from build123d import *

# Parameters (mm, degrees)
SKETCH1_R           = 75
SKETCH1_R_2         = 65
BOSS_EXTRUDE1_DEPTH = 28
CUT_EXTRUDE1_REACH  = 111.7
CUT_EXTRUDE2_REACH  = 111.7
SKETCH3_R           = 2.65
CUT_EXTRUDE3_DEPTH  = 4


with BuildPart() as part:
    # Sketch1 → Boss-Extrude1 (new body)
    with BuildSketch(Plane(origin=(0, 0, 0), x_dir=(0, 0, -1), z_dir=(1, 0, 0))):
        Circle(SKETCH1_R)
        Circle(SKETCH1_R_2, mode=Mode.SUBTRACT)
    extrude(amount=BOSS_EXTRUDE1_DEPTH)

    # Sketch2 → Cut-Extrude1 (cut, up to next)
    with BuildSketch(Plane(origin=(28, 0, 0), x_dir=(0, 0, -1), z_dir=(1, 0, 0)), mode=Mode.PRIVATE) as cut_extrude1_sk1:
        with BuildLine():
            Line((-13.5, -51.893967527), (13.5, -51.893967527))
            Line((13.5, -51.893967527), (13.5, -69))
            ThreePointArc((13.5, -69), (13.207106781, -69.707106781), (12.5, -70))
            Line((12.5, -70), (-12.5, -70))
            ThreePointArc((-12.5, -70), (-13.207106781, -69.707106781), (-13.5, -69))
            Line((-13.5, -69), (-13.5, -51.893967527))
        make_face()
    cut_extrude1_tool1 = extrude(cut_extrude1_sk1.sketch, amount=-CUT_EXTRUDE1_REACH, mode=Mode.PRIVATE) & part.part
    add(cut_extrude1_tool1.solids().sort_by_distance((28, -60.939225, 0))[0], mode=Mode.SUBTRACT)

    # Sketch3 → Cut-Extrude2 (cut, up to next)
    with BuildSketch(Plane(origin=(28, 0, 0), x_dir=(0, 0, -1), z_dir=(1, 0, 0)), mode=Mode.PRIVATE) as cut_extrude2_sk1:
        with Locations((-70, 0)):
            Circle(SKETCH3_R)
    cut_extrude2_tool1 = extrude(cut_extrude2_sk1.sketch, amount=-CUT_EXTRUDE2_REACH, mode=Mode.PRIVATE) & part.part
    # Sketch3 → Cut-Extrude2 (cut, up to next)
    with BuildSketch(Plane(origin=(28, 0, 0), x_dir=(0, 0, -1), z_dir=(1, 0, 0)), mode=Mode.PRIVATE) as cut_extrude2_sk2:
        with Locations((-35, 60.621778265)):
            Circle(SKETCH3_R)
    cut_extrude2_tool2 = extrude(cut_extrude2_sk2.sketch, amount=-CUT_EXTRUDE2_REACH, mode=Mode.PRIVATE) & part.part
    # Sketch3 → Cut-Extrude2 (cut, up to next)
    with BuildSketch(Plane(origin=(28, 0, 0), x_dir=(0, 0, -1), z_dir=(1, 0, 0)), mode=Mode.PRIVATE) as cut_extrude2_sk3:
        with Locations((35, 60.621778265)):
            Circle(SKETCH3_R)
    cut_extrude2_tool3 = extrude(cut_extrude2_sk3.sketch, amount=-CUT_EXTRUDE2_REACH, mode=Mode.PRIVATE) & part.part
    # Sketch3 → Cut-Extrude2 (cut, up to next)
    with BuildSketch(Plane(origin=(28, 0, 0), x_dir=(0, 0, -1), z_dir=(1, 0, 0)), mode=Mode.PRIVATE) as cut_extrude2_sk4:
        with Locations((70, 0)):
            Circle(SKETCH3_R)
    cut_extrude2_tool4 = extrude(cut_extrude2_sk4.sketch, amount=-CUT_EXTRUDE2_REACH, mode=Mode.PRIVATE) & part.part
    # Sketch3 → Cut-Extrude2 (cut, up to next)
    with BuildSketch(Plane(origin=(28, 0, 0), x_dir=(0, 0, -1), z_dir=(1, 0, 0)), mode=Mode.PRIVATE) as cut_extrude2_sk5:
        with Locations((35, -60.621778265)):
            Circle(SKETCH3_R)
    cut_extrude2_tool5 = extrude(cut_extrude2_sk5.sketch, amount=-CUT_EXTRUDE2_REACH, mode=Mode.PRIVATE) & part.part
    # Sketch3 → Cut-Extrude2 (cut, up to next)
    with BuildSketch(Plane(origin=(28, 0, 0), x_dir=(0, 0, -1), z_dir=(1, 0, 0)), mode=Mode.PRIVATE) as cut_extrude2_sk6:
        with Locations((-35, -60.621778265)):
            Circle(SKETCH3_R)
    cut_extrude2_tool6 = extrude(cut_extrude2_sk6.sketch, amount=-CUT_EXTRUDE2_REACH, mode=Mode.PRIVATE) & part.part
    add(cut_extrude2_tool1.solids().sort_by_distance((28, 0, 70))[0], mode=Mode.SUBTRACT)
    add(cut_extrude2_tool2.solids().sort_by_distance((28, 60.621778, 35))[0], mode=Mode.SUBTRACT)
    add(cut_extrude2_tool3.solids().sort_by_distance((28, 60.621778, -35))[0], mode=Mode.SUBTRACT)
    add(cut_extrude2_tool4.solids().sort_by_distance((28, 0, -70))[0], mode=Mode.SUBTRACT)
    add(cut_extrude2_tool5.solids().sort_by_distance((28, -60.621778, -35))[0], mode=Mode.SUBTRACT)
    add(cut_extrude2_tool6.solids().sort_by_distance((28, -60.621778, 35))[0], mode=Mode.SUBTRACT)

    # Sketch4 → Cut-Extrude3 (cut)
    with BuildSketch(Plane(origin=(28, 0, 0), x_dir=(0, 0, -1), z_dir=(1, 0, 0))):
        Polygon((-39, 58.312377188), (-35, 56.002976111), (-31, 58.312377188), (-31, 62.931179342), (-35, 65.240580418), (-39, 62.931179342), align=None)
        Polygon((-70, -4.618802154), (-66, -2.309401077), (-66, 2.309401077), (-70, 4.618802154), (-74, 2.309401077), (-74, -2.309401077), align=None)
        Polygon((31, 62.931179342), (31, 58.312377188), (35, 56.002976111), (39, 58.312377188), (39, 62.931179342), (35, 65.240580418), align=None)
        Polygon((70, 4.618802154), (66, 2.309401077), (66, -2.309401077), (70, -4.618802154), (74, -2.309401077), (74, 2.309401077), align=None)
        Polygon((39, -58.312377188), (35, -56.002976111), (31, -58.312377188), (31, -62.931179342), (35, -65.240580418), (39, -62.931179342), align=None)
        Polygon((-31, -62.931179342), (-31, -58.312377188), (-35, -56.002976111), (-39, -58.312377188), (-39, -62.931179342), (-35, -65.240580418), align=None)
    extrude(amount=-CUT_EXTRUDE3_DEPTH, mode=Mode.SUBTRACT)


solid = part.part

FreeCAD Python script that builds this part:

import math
import FreeCAD as App
import Part
import Sketcher
Q = App.Units.Quantity

doc = App.newDocument("Part")
body = doc.addObject("PartDesign::Body", "Body")

sketch1 = body.newObject("Sketcher::SketchObject", "Sketch")
sketch1.AttachmentSupport = (doc.getObject("YZ_Plane"), [""])
sketch1.MapMode = "FlatFace"
sketch1.addGeometry([
    Part.Circle(App.Vector(0, 0, 0), App.Vector(0, 0, 1), 75),
    Part.Circle(App.Vector(0, 0, 0), App.Vector(0, 0, 1), 65),
], False)
sketch1.addConstraint([
    Sketcher.Constraint("Coincident", 0, 3, -1, 1),
    Sketcher.Constraint("Coincident", 1, 3, -1, 1),
    Sketcher.Constraint("Diameter", 0, 150.0),
    Sketcher.Constraint("Diameter", 1, 130.0),
])
pad1 = body.newObject("PartDesign::Pad", "Pad")
pad1.Profile = sketch1
pad1.Length = 28

sketch2 = body.newObject("Sketcher::SketchObject", "Sketch001")
sketch2.AttachmentSupport = (doc.getObject("YZ_Plane"), [""])
sketch2.MapMode = "FlatFace"
sketch2.AttachmentOffset = App.Placement(App.Vector(0, 0, 28), App.Rotation())
sketch2.addGeometry([
    Part.LineSegment(App.Vector(-51.9, -13.5, 0), App.Vector(-51.9, 13.5, 0)),
    Part.LineSegment(App.Vector(-51.9, 13.5, 0), App.Vector(-69, 13.5, 0)),
    Part.ArcOfCircle(Part.Circle(App.Vector(-69, 12.5, 0), App.Vector(0, 0, 1), 1), math.radians(90), math.radians(180)),
    Part.LineSegment(App.Vector(-70, 12.5, 0), App.Vector(-70, -12.5, 0)),
    Part.ArcOfCircle(Part.Circle(App.Vector(-69, -12.5, 0), App.Vector(0, 0, 1), 1), math.radians(-180), math.radians(-90)),
    Part.LineSegment(App.Vector(-69, -13.5, 0), App.Vector(-51.9, -13.5, 0)),
], False)
sketch2.addConstraint([
    Sketcher.Constraint("Coincident", 0, 2, 1, 1),
    Sketcher.Constraint("Tangent", 1, 2, 2, 1),
    Sketcher.Constraint("Tangent", 2, 2, 3, 1),
    Sketcher.Constraint("Tangent", 3, 2, 4, 1),
    Sketcher.Constraint("Tangent", 4, 2, 5, 1),
    Sketcher.Constraint("Coincident", 5, 2, 0, 1),
    Sketcher.Constraint("Vertical", 0),
    Sketcher.Constraint("Horizontal", 1),
    Sketcher.Constraint("Vertical", 3),
    Sketcher.Constraint("Horizontal", 5),
    Sketcher.Constraint("Equal", 2, 4),
    Sketcher.Constraint("Radius", 2, 1.0),
    Sketcher.Constraint("DistanceY", 0, 1, 0, 2, 27.0),
    Sketcher.Constraint("DistanceX", 2, 3, -1, 1, 69.0),
    Sketcher.Constraint("DistanceY", -1, 1, 2, 3, 12.5),
    Sketcher.Constraint("DistanceX", 1, 2, 1, 1, 17.106032),
])
pocket1 = body.newObject("PartDesign::Pocket", "Pocket")
pocket1.Profile = sketch2
pocket1.Length = 28

sketch3 = body.newObject("Sketcher::SketchObject", "Sketch002")
sketch3.AttachmentSupport = (doc.getObject("YZ_Plane"), [""])
sketch3.MapMode = "FlatFace"
sketch3.AttachmentOffset = App.Placement(App.Vector(0, 0, 28), App.Rotation())
sketch3.addGeometry(Part.Circle(App.Vector(0, 70, 0), App.Vector(0, 0, 1), 2.6), False)
sketch3.addConstraint([
    Sketcher.Constraint("PointOnObject", 0, 3, -2),
    Sketcher.Constraint("Diameter", 0, 5.3),
    Sketcher.Constraint("DistanceY", -1, 1, 0, 3, 70.0),
])
pocket2 = body.newObject("PartDesign::Pocket", "Pocket001")
pocket2.Profile = sketch3
pocket2.Type = "UpToFirst"

sketch4 = body.newObject("Sketcher::SketchObject", "Sketch003")
sketch4.AttachmentSupport = (doc.getObject("YZ_Plane"), [""])
sketch4.MapMode = "FlatFace"
sketch4.AttachmentOffset = App.Placement(App.Vector(0, 0, 28), App.Rotation())
sketch4.addGeometry(Part.Circle(App.Vector(60.6, 35, 0), App.Vector(0, 0, 1), 2.6), False)
sketch4.addConstraint([
    Sketcher.Constraint("Diameter", 0, 5.3),
    Sketcher.Constraint("DistanceY", -1, 1, 0, 3, 35.0),
    Sketcher.Constraint("DistanceX", -1, 1, 0, 3, 60.621778),
])
pocket3 = body.newObject("PartDesign::Pocket", "Pocket002")
pocket3.Profile = sketch4
pocket3.Type = "UpToFirst"

sketch5 = body.newObject("Sketcher::SketchObject", "Sketch004")
sketch5.AttachmentSupport = (doc.getObject("YZ_Plane"), [""])
sketch5.MapMode = "FlatFace"
sketch5.AttachmentOffset = App.Placement(App.Vector(0, 0, 28), App.Rotation())
sketch5.addGeometry(Part.Circle(App.Vector(60.6, -35, 0), App.Vector(0, 0, 1), 2.6), False)
sketch5.addConstraint([
    Sketcher.Constraint("Diameter", 0, 5.3),
    Sketcher.Constraint("DistanceY", 0, 3, -1, 1, 35.0),
    Sketcher.Constraint("DistanceX", -1, 1, 0, 3, 60.621778),
])
pocket4 = body.newObject("PartDesign::Pocket", "Pocket003")
pocket4.Profile = sketch5
pocket4.Type = "UpToFirst"

sketch6 = body.newObject("Sketcher::SketchObject", "Sketch005")
sketch6.AttachmentSupport = (doc.getObject("YZ_Plane"), [""])
sketch6.MapMode = "FlatFace"
sketch6.AttachmentOffset = App.Placement(App.Vector(0, 0, 28), App.Rotation())
sketch6.addGeometry(Part.Circle(App.Vector(0, -70, 0), App.Vector(0, 0, 1), 2.6), False)
sketch6.addConstraint([
    Sketcher.Constraint("PointOnObject", 0, 3, -2),
    Sketcher.Constraint("Diameter", 0, 5.3),
    Sketcher.Constraint("DistanceY", 0, 3, -1, 1, 70.0),
])
pocket5 = body.newObject("PartDesign::Pocket", "Pocket004")
pocket5.Profile = sketch6
pocket5.Type = "UpToFirst"

sketch7 = body.newObject("Sketcher::SketchObject", "Sketch006")
sketch7.AttachmentSupport = (doc.getObject("YZ_Plane"), [""])
sketch7.MapMode = "FlatFace"
sketch7.AttachmentOffset = App.Placement(App.Vector(0, 0, 28), App.Rotation())
sketch7.addGeometry(Part.Circle(App.Vector(-60.6, -35, 0), App.Vector(0, 0, 1), 2.6), False)
sketch7.addConstraint([
    Sketcher.Constraint("Diameter", 0, 5.3),
    Sketcher.Constraint("DistanceY", 0, 3, -1, 1, 35.0),
    Sketcher.Constraint("DistanceX", 0, 3, -1, 1, 60.621778),
])
pocket6 = body.newObject("PartDesign::Pocket", "Pocket005")
pocket6.Profile = sketch7
pocket6.Type = "UpToFirst"

sketch8 = body.newObject("Sketcher::SketchObject", "Sketch007")
sketch8.AttachmentSupport = (doc.getObject("YZ_Plane"), [""])
sketch8.MapMode = "FlatFace"
sketch8.AttachmentOffset = App.Placement(App.Vector(0, 0, 28), App.Rotation())
sketch8.addGeometry(Part.Circle(App.Vector(-60.6, 35, 0), App.Vector(0, 0, 1), 2.6), False)
sketch8.addConstraint([
    Sketcher.Constraint("Diameter", 0, 5.3),
    Sketcher.Constraint("DistanceY", -1, 1, 0, 3, 35.0),
    Sketcher.Constraint("DistanceX", 0, 3, -1, 1, 60.621778),
])
pocket7 = body.newObject("PartDesign::Pocket", "Pocket006")
pocket7.Profile = sketch8
pocket7.Type = "UpToFirst"

sketch9 = body.newObject("Sketcher::SketchObject", "Sketch008")
sketch9.AttachmentSupport = (doc.getObject("YZ_Plane"), [""])
sketch9.MapMode = "FlatFace"
sketch9.AttachmentOffset = App.Placement(App.Vector(0, 0, 28), App.Rotation())
sketch9.addGeometry([
    Part.LineSegment(App.Vector(58.3, 39, 0), App.Vector(56, 35, 0)),
    Part.LineSegment(App.Vector(56, 35, 0), App.Vector(58.3, 31, 0)),
    Part.LineSegment(App.Vector(58.3, 31, 0), App.Vector(62.9, 31, 0)),
    Part.LineSegment(App.Vector(62.9, 31, 0), App.Vector(65.2, 35, 0)),
    Part.LineSegment(App.Vector(65.2, 35, 0), App.Vector(62.9, 39, 0)),
    Part.LineSegment(App.Vector(62.9, 39, 0), App.Vector(58.3, 39, 0)),
    Part.LineSegment(App.Vector(-4.6, 70, 0), App.Vector(-2.3, 66, 0)),
    Part.LineSegment(App.Vector(-2.3, 66, 0), App.Vector(2.3, 66, 0)),
    Part.LineSegment(App.Vector(2.3, 66, 0), App.Vector(4.6, 70, 0)),
    Part.LineSegment(App.Vector(4.6, 70, 0), App.Vector(2.3, 74, 0)),
    Part.LineSegment(App.Vector(2.3, 74, 0), App.Vector(-2.3, 74, 0)),
    Part.LineSegment(App.Vector(-2.3, 74, 0), App.Vector(-4.6, 70, 0)),
    Part.LineSegment(App.Vector(62.9, -31, 0), App.Vector(58.3, -31, 0)),
    Part.LineSegment(App.Vector(58.3, -31, 0), App.Vector(56, -35, 0)),
    Part.LineSegment(App.Vector(56, -35, 0), App.Vector(58.3, -39, 0)),
    Part.LineSegment(App.Vector(58.3, -39, 0), App.Vector(62.9, -39, 0)),
    Part.LineSegment(App.Vector(62.9, -39, 0), App.Vector(65.2, -35, 0)),
    Part.LineSegment(App.Vector(65.2, -35, 0), App.Vector(62.9, -31, 0)),
    Part.LineSegment(App.Vector(4.6, -70, 0), App.Vector(2.3, -66, 0)),
    Part.LineSegment(App.Vector(2.3, -66, 0), App.Vector(-2.3, -66, 0)),
    Part.LineSegment(App.Vector(-2.3, -66, 0), App.Vector(-4.6, -70, 0)),
    Part.LineSegment(App.Vector(-4.6, -70, 0), App.Vector(-2.3, -74, 0)),
    Part.LineSegment(App.Vector(-2.3, -74, 0), App.Vector(2.3, -74, 0)),
    Part.LineSegment(App.Vector(2.3, -74, 0), App.Vector(4.6, -70, 0)),
    Part.LineSegment(App.Vector(-58.3, -39, 0), App.Vector(-56, -35, 0)),
    Part.LineSegment(App.Vector(-56, -35, 0), App.Vector(-58.3, -31, 0)),
    Part.LineSegment(App.Vector(-58.3, -31, 0), App.Vector(-62.9, -31, 0)),
    Part.LineSegment(App.Vector(-62.9, -31, 0), App.Vector(-65.2, -35, 0)),
    Part.LineSegment(App.Vector(-65.2, -35, 0), App.Vector(-62.9, -39, 0)),
    Part.LineSegment(App.Vector(-62.9, -39, 0), App.Vector(-58.3, -39, 0)),
    Part.LineSegment(App.Vector(-62.9, 31, 0), App.Vector(-58.3, 31, 0)),
    Part.LineSegment(App.Vector(-58.3, 31, 0), App.Vector(-56, 35, 0)),
    Part.LineSegment(App.Vector(-56, 35, 0), App.Vector(-58.3, 39, 0)),
    Part.LineSegment(App.Vector(-58.3, 39, 0), App.Vector(-62.9, 39, 0)),
    Part.LineSegment(App.Vector(-62.9, 39, 0), App.Vector(-65.2, 35, 0)),
    Part.LineSegment(App.Vector(-65.2, 35, 0), App.Vector(-62.9, 31, 0)),
], False)
sketch9.addConstraint([
    Sketcher.Constraint("Coincident", 0, 2, 1, 1),
    Sketcher.Constraint("Coincident", 1, 2, 2, 1),
    Sketcher.Constraint("Coincident", 2, 2, 3, 1),
    Sketcher.Constraint("Coincident", 3, 2, 4, 1),
    Sketcher.Constraint("Coincident", 4, 2, 5, 1),
    Sketcher.Constraint("Coincident", 5, 2, 0, 1),
    Sketcher.Constraint("Coincident", 6, 2, 7, 1),
    Sketcher.Constraint("Coincident", 7, 2, 8, 1),
    Sketcher.Constraint("Coincident", 8, 2, 9, 1),
    Sketcher.Constraint("Coincident", 9, 2, 10, 1),
    Sketcher.Constraint("Coincident", 10, 2, 11, 1),
    Sketcher.Constraint("Coincident", 11, 2, 6, 1),
    Sketcher.Constraint("Coincident", 12, 2, 13, 1),
    Sketcher.Constraint("Coincident", 13, 2, 14, 1),
    Sketcher.Constraint("Coincident", 14, 2, 15, 1),
    Sketcher.Constraint("Coincident", 15, 2, 16, 1),
    Sketcher.Constraint("Coincident", 16, 2, 17, 1),
    Sketcher.Constraint("Coincident", 17, 2, 12, 1),
    Sketcher.Constraint("Coincident", 18, 2, 19, 1),
    Sketcher.Constraint("Coincident", 19, 2, 20, 1),
    Sketcher.Constraint("Coincident", 20, 2, 21, 1),
    Sketcher.Constraint("Coincident", 21, 2, 22, 1),
    Sketcher.Constraint("Coincident", 22, 2, 23, 1),
    Sketcher.Constraint("Coincident", 23, 2, 18, 1),
    Sketcher.Constraint("Coincident", 24, 2, 25, 1),
    Sketcher.Constraint("Coincident", 25, 2, 26, 1),
    Sketcher.Constraint("Coincident", 26, 2, 27, 1),
    Sketcher.Constraint("Coincident", 27, 2, 28, 1),
    Sketcher.Constraint("Coincident", 28, 2, 29, 1),
    Sketcher.Constraint("Coincident", 29, 2, 24, 1),
    Sketcher.Constraint("Coincident", 30, 2, 31, 1),
    Sketcher.Constraint("Coincident", 31, 2, 32, 1),
    Sketcher.Constraint("Coincident", 32, 2, 33, 1),
    Sketcher.Constraint("Coincident", 33, 2, 34, 1),
    Sketcher.Constraint("Coincident", 34, 2, 35, 1),
    Sketcher.Constraint("Coincident", 35, 2, 30, 1),
    Sketcher.Constraint("Horizontal", 2),
    Sketcher.Constraint("Horizontal", 5),
    Sketcher.Constraint("Horizontal", 7),
    Sketcher.Constraint("Horizontal", 10),
    Sketcher.Constraint("Horizontal", 12),
    Sketcher.Constraint("Horizontal", 15),
    Sketcher.Constraint("Horizontal", 19),
    Sketcher.Constraint("Horizontal", 22),
    Sketcher.Constraint("Horizontal", 26),
    Sketcher.Constraint("Horizontal", 29),
    Sketcher.Constraint("Horizontal", 30),
    Sketcher.Constraint("Horizontal", 33),
    Sketcher.Constraint("Symmetric", 6, 2, 18, 2, -1, 1),
    Sketcher.Constraint("Symmetric", 8, 2, 20, 2, -1, 1),
    Sketcher.Constraint("Symmetric", 9, 2, 21, 2, -1, 1),
    Sketcher.Constraint("Symmetric", 11, 2, 23, 2, -1, 1),
    Sketcher.Constraint("Symmetric", 0, 2, 24, 2, -1, 1),
    Sketcher.Constraint("Symmetric", 1, 2, 25, 2, -1, 1),
    Sketcher.Constraint("Symmetric", 3, 2, 27, 2, -1, 1),
    Sketcher.Constraint("Symmetric", 4, 2, 28, 2, -1, 1),
    Sketcher.Constraint("Symmetric", 12, 2, 30, 2, -1, 1),
    Sketcher.Constraint("Symmetric", 13, 2, 31, 2, -1, 1),
    Sketcher.Constraint("Symmetric", 14, 2, 32, 2, -1, 1),
    Sketcher.Constraint("Symmetric", 16, 2, 34, 2, -1, 1),
    Sketcher.Constraint("Symmetric", 8, 2, 11, 2, -2),
    Sketcher.Constraint("Symmetric", 13, 2, 24, 2, -2),
    Sketcher.Constraint("Symmetric", 12, 2, 25, 2, -2),
    Sketcher.Constraint("Symmetric", 16, 2, 27, 2, -2),
    Sketcher.Constraint("Symmetric", 15, 2, 28, 2, -2),
    Sketcher.Constraint("Parallel", 0, 3),
    Sketcher.Constraint("Parallel", 1, 4),
    Sketcher.Constraint("Parallel", 4, 6),
    Sketcher.Constraint("Parallel", 3, 8),
    Sketcher.Constraint("Parallel", 6, 9),
    Sketcher.Constraint("Parallel", 8, 11),
    Sketcher.Constraint("Parallel", 11, 13),
    Sketcher.Constraint("Parallel", 9, 14),
    Sketcher.Constraint("Parallel", 14, 17),
    Sketcher.Constraint("Parallel", 16, 20),
    Sketcher.Constraint("Parallel", 20, 23),
    Sketcher.Constraint("Parallel", 23, 24),
    Sketcher.Constraint("Parallel", 24, 27),
    Sketcher.Constraint("Parallel", 31, 34),
    Sketcher.Constraint("Parallel", 32, 35),
    Sketcher.Constraint("Horizontal", 0, 2, 3, 2),
    Sketcher.Constraint("Vertical", 2, 2, 4, 2),
    Sketcher.Constraint("Vertical", 7, 2, 9, 2),
    Sketcher.Constraint("Equal", 5, 7),
    Sketcher.Constraint("Equal", 4, 6),
    Sketcher.Constraint("Angle", 0, Q("-120 deg")),
    Sketcher.Constraint("DistanceY", -1, 1, 0, 2, 35.0),
    Sketcher.Constraint("DistanceY", -1, 1, 1, 2, 31.0),
    Sketcher.Constraint("DistanceY", -1, 1, 6, 2, 66.0),
    Sketcher.Constraint("DistanceX", 6, 2, -1, 1, 2.309401),
    Sketcher.Constraint("DistanceX", -1, 1, 2, 2, 62.931179),
])
pocket8 = body.newObject("PartDesign::Pocket", "Pocket007")
pocket8.Profile = sketch9
pocket8.Length = 4

doc.recompute()
